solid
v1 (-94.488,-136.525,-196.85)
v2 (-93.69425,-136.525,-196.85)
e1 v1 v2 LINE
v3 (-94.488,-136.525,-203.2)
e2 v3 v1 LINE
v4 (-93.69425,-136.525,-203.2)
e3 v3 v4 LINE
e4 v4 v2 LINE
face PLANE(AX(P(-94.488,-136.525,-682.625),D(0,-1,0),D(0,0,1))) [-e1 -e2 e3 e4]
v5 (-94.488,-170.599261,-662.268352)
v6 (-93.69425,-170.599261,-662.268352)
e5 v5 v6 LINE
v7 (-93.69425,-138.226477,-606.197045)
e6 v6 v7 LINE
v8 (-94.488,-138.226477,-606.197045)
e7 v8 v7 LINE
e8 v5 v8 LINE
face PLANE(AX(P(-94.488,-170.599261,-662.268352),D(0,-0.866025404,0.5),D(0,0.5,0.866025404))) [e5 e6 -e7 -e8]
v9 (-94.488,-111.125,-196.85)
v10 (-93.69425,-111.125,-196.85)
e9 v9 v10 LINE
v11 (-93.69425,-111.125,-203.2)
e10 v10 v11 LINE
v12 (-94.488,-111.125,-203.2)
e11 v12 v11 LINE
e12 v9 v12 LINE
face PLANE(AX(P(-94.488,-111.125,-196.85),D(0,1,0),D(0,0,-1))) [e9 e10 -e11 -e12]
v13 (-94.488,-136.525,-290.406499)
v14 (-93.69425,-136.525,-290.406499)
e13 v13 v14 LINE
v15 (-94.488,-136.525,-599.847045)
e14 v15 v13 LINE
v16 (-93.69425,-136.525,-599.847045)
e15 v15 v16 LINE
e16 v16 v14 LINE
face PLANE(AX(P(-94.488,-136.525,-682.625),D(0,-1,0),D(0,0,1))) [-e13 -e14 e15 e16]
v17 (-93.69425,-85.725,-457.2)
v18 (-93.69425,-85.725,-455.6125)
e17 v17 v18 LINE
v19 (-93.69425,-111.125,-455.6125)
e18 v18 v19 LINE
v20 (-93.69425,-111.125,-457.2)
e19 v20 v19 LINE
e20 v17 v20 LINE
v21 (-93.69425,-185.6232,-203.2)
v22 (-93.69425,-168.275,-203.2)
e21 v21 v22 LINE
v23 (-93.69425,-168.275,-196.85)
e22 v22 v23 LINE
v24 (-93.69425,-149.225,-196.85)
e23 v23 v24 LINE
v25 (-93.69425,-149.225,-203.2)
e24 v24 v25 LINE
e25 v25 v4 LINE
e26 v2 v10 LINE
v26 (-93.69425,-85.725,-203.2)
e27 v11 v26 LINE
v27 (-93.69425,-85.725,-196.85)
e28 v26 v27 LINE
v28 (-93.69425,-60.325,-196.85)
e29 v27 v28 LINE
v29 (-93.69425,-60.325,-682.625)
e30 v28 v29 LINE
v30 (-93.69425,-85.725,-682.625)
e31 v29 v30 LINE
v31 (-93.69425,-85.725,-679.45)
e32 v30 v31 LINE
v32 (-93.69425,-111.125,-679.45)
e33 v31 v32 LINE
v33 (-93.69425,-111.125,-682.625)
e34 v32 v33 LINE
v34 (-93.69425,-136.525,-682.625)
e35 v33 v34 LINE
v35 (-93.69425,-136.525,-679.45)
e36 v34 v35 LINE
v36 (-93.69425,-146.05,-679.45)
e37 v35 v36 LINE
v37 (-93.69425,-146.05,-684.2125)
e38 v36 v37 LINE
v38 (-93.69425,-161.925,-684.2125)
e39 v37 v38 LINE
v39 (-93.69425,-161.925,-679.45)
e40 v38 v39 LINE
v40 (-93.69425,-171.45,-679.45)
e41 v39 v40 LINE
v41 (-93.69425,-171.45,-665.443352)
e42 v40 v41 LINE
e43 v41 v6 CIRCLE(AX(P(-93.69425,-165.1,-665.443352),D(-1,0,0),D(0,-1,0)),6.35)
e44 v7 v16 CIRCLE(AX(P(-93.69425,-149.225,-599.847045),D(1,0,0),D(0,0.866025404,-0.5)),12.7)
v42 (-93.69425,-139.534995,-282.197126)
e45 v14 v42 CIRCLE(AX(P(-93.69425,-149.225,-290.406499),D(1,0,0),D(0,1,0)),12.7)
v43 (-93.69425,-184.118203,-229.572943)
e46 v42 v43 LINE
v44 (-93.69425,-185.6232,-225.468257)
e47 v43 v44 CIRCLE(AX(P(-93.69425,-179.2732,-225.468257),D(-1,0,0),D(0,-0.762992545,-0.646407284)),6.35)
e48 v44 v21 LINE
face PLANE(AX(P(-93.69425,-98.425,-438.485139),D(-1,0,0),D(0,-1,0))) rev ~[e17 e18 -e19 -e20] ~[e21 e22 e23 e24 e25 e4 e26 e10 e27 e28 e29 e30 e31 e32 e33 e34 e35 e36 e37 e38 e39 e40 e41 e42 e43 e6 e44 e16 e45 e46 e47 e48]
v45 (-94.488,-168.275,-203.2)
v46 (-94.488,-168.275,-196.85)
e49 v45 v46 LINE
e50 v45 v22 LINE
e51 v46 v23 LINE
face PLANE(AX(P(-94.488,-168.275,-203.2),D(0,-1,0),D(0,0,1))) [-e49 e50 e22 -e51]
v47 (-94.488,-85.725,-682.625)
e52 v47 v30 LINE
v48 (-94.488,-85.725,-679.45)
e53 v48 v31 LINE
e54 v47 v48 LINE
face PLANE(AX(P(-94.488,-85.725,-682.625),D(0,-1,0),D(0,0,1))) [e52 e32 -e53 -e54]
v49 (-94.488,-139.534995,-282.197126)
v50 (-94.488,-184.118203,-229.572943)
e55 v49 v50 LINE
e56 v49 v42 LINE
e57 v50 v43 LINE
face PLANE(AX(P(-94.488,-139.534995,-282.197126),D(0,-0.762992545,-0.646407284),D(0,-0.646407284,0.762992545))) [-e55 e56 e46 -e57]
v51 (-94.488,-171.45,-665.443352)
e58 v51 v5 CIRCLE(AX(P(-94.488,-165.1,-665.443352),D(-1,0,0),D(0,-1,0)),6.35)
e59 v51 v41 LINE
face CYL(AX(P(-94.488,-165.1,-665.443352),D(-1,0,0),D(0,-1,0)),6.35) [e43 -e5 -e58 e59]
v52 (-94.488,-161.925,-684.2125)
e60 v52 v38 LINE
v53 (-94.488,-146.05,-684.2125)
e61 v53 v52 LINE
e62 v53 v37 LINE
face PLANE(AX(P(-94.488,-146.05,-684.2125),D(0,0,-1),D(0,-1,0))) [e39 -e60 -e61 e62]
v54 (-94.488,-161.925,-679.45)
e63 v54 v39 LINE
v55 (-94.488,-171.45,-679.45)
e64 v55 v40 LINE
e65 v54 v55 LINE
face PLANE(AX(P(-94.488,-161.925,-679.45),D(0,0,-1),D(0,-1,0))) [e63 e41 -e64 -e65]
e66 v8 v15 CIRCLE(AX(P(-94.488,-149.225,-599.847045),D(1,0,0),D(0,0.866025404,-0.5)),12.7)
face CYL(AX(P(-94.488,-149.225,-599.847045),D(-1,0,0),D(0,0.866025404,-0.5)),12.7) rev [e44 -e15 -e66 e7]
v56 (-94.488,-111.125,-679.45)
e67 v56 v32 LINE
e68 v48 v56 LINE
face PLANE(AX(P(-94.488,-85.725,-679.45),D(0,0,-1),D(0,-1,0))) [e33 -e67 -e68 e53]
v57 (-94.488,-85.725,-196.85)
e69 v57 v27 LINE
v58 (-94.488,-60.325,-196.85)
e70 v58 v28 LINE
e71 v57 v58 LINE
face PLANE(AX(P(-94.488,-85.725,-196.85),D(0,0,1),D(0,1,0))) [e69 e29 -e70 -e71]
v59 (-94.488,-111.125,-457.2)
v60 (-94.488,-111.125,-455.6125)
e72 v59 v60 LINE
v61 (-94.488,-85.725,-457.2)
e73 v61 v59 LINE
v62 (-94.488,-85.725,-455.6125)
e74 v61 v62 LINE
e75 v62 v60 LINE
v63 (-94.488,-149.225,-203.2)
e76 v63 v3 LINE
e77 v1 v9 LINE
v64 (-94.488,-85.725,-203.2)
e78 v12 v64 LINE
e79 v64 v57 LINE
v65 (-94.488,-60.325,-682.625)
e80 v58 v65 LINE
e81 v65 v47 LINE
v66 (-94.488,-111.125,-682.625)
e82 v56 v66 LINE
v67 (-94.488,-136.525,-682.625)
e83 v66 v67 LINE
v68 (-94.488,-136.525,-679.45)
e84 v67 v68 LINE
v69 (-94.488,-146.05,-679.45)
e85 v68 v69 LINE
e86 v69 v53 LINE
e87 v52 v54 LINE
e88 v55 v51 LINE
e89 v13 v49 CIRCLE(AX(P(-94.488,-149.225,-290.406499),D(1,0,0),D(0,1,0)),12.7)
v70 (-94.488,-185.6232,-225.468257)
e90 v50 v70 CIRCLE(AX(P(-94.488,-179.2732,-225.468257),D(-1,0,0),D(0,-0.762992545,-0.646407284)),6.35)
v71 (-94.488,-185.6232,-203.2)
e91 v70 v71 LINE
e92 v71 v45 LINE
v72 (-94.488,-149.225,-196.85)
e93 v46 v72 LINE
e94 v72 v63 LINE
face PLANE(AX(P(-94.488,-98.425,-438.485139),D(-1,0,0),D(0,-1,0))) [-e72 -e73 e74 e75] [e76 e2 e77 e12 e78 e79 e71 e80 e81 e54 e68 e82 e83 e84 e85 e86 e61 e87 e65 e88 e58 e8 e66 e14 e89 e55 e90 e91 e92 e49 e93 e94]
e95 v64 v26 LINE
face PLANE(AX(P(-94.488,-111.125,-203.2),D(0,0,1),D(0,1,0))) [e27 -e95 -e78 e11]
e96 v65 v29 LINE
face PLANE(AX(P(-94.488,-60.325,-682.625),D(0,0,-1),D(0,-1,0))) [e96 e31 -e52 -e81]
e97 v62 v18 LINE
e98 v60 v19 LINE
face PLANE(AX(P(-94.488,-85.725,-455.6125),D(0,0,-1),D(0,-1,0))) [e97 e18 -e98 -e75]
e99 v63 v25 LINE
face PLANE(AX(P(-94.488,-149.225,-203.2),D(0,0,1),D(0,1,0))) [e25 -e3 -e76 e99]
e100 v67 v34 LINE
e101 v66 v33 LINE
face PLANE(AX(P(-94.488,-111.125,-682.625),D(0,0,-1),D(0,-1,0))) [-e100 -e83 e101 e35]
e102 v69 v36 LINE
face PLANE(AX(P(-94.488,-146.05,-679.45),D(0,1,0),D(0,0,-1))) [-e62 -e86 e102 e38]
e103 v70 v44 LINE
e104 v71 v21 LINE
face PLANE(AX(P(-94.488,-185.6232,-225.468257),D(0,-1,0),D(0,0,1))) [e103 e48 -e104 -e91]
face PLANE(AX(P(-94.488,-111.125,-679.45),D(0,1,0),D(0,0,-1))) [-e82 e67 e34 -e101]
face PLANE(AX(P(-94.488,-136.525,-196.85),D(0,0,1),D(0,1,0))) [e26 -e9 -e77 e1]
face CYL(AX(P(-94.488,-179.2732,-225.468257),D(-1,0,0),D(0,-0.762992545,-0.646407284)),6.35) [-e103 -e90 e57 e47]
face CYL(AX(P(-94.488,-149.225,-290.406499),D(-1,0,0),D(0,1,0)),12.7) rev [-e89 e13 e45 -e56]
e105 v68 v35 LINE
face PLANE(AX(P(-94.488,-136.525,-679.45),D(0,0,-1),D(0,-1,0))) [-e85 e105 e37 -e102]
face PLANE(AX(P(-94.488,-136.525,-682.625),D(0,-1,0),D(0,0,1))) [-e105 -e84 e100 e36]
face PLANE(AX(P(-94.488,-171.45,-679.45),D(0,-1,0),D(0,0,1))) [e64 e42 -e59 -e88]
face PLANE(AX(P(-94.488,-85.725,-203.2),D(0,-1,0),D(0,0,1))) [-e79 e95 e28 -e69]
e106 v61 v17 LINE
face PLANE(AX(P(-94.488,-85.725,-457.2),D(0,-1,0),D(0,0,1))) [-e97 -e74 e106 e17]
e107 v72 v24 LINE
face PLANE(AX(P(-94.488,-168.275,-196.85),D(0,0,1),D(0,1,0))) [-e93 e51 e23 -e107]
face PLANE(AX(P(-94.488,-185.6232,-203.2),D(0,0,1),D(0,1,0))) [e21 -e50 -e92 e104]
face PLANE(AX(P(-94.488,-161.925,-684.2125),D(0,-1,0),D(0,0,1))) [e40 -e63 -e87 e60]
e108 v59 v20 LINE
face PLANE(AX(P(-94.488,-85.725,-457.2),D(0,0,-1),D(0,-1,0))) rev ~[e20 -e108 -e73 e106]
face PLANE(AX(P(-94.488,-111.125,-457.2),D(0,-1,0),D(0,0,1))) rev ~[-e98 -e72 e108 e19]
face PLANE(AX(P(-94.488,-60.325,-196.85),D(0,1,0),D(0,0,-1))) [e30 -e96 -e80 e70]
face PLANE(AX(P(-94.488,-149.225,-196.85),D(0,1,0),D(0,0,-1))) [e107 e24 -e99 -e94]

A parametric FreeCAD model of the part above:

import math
import FreeCAD as App
import Part
import Sketcher
Q = App.Units.Quantity


def add_polygon(sketch, points):
    """Adds a closed chain of lines whose ends are joined by coincident constraints."""
    first, n = sketch.GeometryCount, len(points)
    for a, b in zip(points, points[1:] + points[:1]):
        sketch.addGeometry(Part.LineSegment(App.Vector(*a, 0), App.Vector(*b, 0)), False)
    for i in range(n):
        sketch.addConstraint(Sketcher.Constraint("Coincident", first + i, 2, first + (i + 1) % n, 1))

doc = App.newDocument("Part")
params = doc.addObject("Spreadsheet::Sheet", "Params")
for row, (alias, value) in enumerate([
    ("sketch1_radius", "0.5 in"),
    ("sketch1_width", "1 in"),
    ("sketch1_radius2", "0.25 in"),
    ("sketch1_width2", "0.75 in"),
    ("sketch1_height", "0.25 in"),
    ("pad1_length", "0.03125 in"),
], start=1):
    params.set(f"A{row}", alias)
    params.set(f"B{row}", "=" + value)
    params.setAlias(f"B{row}", alias)

body = doc.addObject("PartDesign::Body", "Body")

# Sketch on YZ plane
sketch1 = doc.addObject("Sketcher::SketchObject", "Sketch")
body.addObject(sketch1)
sketch1.AttachmentSupport = (doc.YZ_Plane, [""])
sketch1.MapMode = "FlatFace"
sketch1.AttachmentOffset = App.Placement(App.Vector(0, 0, -3.72 * 25.4), App.Rotation())
sketch1.addGeometry(Part.LineSegment(App.Vector(-136.5, -196.8, 0), App.Vector(-111.1, -196.8, 0)), False)  # 0
sketch1.addGeometry(Part.LineSegment(App.Vector(-111.1, -196.8, 0), App.Vector(-111.1, -203.2, 0)), False)  # 1
sketch1.addGeometry(Part.LineSegment(App.Vector(-111.1, -203.2, 0), App.Vector(-85.7, -203.2, 0)), False)  # 2
sketch1.addGeometry(Part.LineSegment(App.Vector(-85.7, -203.2, 0), App.Vector(-85.7, -196.8, 0)), False)  # 3
sketch1.addGeometry(Part.LineSegment(App.Vector(-85.7, -196.8, 0), App.Vector(-60.3, -196.8, 0)), False)  # 4
sketch1.addGeometry(Part.LineSegment(App.Vector(-60.3, -196.8, 0), App.Vector(-60.3, -682.6, 0)), False)  # 5
sketch1.addGeometry(Part.LineSegment(App.Vector(-60.3, -682.6, 0), App.Vector(-85.7, -682.6, 0)), False)  # 6
sketch1.addGeometry(Part.LineSegment(App.Vector(-85.7, -682.6, 0), App.Vector(-85.7, -679.5, 0)), False)  # 7
sketch1.addGeometry(Part.LineSegment(App.Vector(-85.7, -679.5, 0), App.Vector(-111.1, -679.5, 0)), False)  # 8
sketch1.addGeometry(Part.LineSegment(App.Vector(-111.1, -679.5, 0), App.Vector(-111.1, -682.6, 0)), False)  # 9
sketch1.addGeometry(Part.LineSegment(App.Vector(-111.1, -682.6, 0), App.Vector(-136.5, -682.6, 0)), False)  # 10
sketch1.addGeometry(Part.LineSegment(App.Vector(-136.5, -682.6, 0), App.Vector(-136.5, -679.5, 0)), False)  # 11
sketch1.addGeometry(Part.LineSegment(App.Vector(-136.5, -679.5, 0), App.Vector(-146.1, -679.5, 0)), False)  # 12
sketch1.addGeometry(Part.LineSegment(App.Vector(-146.1, -679.5, 0), App.Vector(-146.1, -684.2, 0)), False)  # 13
sketch1.addGeometry(Part.LineSegment(App.Vector(-146.1, -684.2, 0), App.Vector(-161.9, -684.2, 0)), False)  # 14
sketch1.addGeometry(Part.LineSegment(App.Vector(-161.9, -684.2, 0), App.Vector(-161.9, -679.5, 0)), False)  # 15
sketch1.addGeometry(Part.LineSegment(App.Vector(-161.9, -679.5, 0), App.Vector(-171.4, -679.5, 0)), False)  # 16
sketch1.addGeometry(Part.LineSegment(App.Vector(-171.4, -679.5, 0), App.Vector(-171.4, -665.4, 0)), False)  # 17
sketch1.addGeometry(Part.ArcOfCircle(Part.Circle(App.Vector(-165.1, -665.4, 0), App.Vector(0, 0, 1), 6.4), math.radians(150), math.radians(180)), False)  # 18
sketch1.addGeometry(Part.LineSegment(App.Vector(-170.6, -662.3, 0), App.Vector(-138.2, -606.2, 0)), False)  # 19
sketch1.addGeometry(Part.ArcOfCircle(Part.Circle(App.Vector(-149.2, -599.8, 0), App.Vector(0, 0, 1), 12.7), math.radians(-30), math.radians(0)), False)  # 20
sketch1.addGeometry(Part.LineSegment(App.Vector(-136.5, -599.8, 0), App.Vector(-136.5, -290.4, 0)), False)  # 21
sketch1.addGeometry(Part.ArcOfCircle(Part.Circle(App.Vector(-149.2, -290.4, 0), App.Vector(0, 0, 1), 12.7), math.radians(0), math.radians(40)), False)  # 22
sketch1.addGeometry(Part.LineSegment(App.Vector(-139.5, -282.2, 0), App.Vector(-184.1, -229.6, 0)), False)  # 23
sketch1.addGeometry(Part.ArcOfCircle(Part.Circle(App.Vector(-179.3, -225.5, 0), App.Vector(0, 0, 1), 6.3), math.radians(180), math.radians(220)), False)  # 24
sketch1.addGeometry(Part.LineSegment(App.Vector(-185.6, -225.5, 0), App.Vector(-185.6, -203.2, 0)), False)  # 25
sketch1.addGeometry(Part.LineSegment(App.Vector(-185.6, -203.2, 0), App.Vector(-168.3, -203.2, 0)), False)  # 26
sketch1.addGeometry(Part.LineSegment(App.Vector(-168.3, -203.2, 0), App.Vector(-168.3, -196.8, 0)), False)  # 27
sketch1.addGeometry(Part.LineSegment(App.Vector(-168.3, -196.8, 0), App.Vector(-149.2, -196.8, 0)), False)  # 28
sketch1.addGeometry(Part.LineSegment(App.Vector(-149.2, -196.8, 0), App.Vector(-149.2, -203.2, 0)), False)  # 29
sketch1.addGeometry(Part.LineSegment(App.Vector(-149.2, -203.2, 0), App.Vector(-136.5, -203.2, 0)), False)  # 30
sketch1.addGeometry(Part.LineSegment(App.Vector(-136.5, -203.2, 0), App.Vector(-136.5, -196.8, 0)), False)  # 31
add_polygon(sketch1, [(-111.1, -457.2), (-85.7, -457.2), (-85.7, -455.6), (-111.1, -455.6)])  # lines 32-35
sketch1.addConstraint([
    Sketcher.Constraint("Coincident", 0, 2, 1, 1),
    Sketcher.Constraint("Coincident", 1, 2, 2, 1),
    Sketcher.Constraint("Coincident", 2, 2, 3, 1),
    Sketcher.Constraint("Coincident", 3, 2, 4, 1),
    Sketcher.Constraint("Coincident", 4, 2, 5, 1),
    Sketcher.Constraint("Coincident", 5, 2, 6, 1),
    Sketcher.Constraint("Coincident", 6, 2, 7, 1),
    Sketcher.Constraint("Coincident", 7, 2, 8, 1),
    Sketcher.Constraint("Coincident", 8, 2, 9, 1),
    Sketcher.Constraint("Coincident", 9, 2, 10, 1),
    Sketcher.Constraint("Coincident", 10, 2, 11, 1),
    Sketcher.Constraint("Coincident", 11, 2, 12, 1),
    Sketcher.Constraint("Coincident", 12, 2, 13, 1),
    Sketcher.Constraint("Coincident", 13, 2, 14, 1),
    Sketcher.Constraint("Coincident", 14, 2, 15, 1),
    Sketcher.Constraint("Coincident", 15, 2, 16, 1),
    Sketcher.Constraint("Coincident", 16, 2, 17, 1),
    Sketcher.Constraint("Tangent", 17, 2, 18, 2),
    Sketcher.Constraint("Tangent", 18, 1, 19, 1),
    Sketcher.Constraint("Tangent", 19, 2, 20, 1),
    Sketcher.Constraint("Tangent", 20, 2, 21, 1),
    Sketcher.Constraint("Tangent", 21, 2, 22, 1),
    Sketcher.Constraint("Tangent", 22, 2, 23, 1),
    Sketcher.Constraint("Tangent", 23, 2, 24, 2),
    Sketcher.Constraint("Tangent", 24, 1, 25, 1),
    Sketcher.Constraint("Coincident", 25, 2, 26, 1),
    Sketcher.Constraint("Coincident", 26, 2, 27, 1),
    Sketcher.Constraint("Coincident", 27, 2, 28, 1),
    Sketcher.Constraint("Coincident", 28, 2, 29, 1),
    Sketcher.Constraint("Coincident", 29, 2, 30, 1),
    Sketcher.Constraint("Coincident", 30, 2, 31, 1),
    Sketcher.Constraint("Coincident", 31, 2, 0, 1),
    Sketcher.Constraint("Horizontal", 0),
    Sketcher.Constraint("Vertical", 1),
    Sketcher.Constraint("Horizontal", 2),
    Sketcher.Constraint("Vertical", 3),
    Sketcher.Constraint("Horizontal", 4),
    Sketcher.Constraint("Vertical", 5),
    Sketcher.Constraint("Horizontal", 6),
    Sketcher.Constraint("Vertical", 7),
    Sketcher.Constraint("Horizontal", 8),
    Sketcher.Constraint("Vertical", 9),
    Sketcher.Constraint("Horizontal", 10),
    Sketcher.Constraint("Vertical", 11),
    Sketcher.Constraint("Horizontal", 12),
    Sketcher.Constraint("Vertical", 13),
    Sketcher.Constraint("Horizontal", 14),
    Sketcher.Constraint("Vertical", 15),
    Sketcher.Constraint("Horizontal", 16),
    Sketcher.Constraint("Vertical", 17),
    Sketcher.Constraint("Vertical", 21),
    Sketcher.Constraint("Vertical", 25),
    Sketcher.Constraint("Horizontal", 26),
    Sketcher.Constraint("Vertical", 27),
    Sketcher.Constraint("Horizontal", 28),
    Sketcher.Constraint("Vertical", 29),
    Sketcher.Constraint("Horizontal", 30),
    Sketcher.Constraint("Vertical", 31),
    Sketcher.Constraint("Horizontal", 32),
    Sketcher.Constraint("Vertical", 33),
    Sketcher.Constraint("Horizontal", 34),
    Sketcher.Constraint("Vertical", 35),
    Sketcher.Constraint("Equal", 20, 22),
    Sketcher.Constraint("Equal", 18, 24),
    Sketcher.Constraint("Horizontal", 0, 2, 3, 2),
    Sketcher.Constraint("Horizontal", 6, 2, 9, 2),
    Sketcher.Constraint("Horizontal", 8, 2, 11, 2),
    Sketcher.Constraint("Horizontal", 12, 2, 15, 2),
    Sketcher.Constraint("Horizontal", 2, 2, 25, 2),
    Sketcher.Constraint("Horizontal", 4, 2, 27, 2),
    Sketcher.Constraint("Horizontal", 26, 2, 29, 2),
    Sketcher.Constraint("Vertical", 3, 2, 6, 2),
    Sketcher.Constraint("Vertical", 1, 2, 8, 2),
    Sketcher.Constraint("Vertical", 11, 2, 20, 2),
    Sketcher.Constraint("Vertical", 22, 3, 28, 2),
    Sketcher.Constraint("Vertical", 21, 2, 30, 2),
    Sketcher.Constraint("Vertical", 7, 2, 32, 2),
    Sketcher.Constraint("Vertical", 9, 2, 34, 2),
    Sketcher.Constraint("Equal", 0, 2),
    Sketcher.Constraint("Equal", 2, 4),
    Sketcher.Constraint("Equal", 12, 16),
    Sketcher.Constraint("Radius", 20, Q("0.5 in")),
    Sketcher.Constraint("DistanceX", 0, 1, 0, 2, Q("1 in")),
    Sketcher.Constraint("Radius", 18, Q("0.25 in")),
    Sketcher.Constraint("DistanceY", 1, 2, -1, 1, Q("8 in")),
    Sketcher.Constraint("DistanceY", 32, 2, -1, 1, Q("18 in")),
    Sketcher.Constraint("Angle", 19, Q("60 deg")),
    Sketcher.Constraint("DistanceX", 14, 2, 10, 2, Q("1 in")),
    Sketcher.Constraint("DistanceX", 28, 1, 28, 2, Q("0.75 in")),
    Sketcher.Constraint("DistanceY", 1, 2, 1, 1, Q("0.25 in")),
    Sketcher.Constraint("DistanceX", 18, 3, -1, 1, Q("6.5 in")),
    Sketcher.Constraint("DistanceX", 12, 2, 12, 1, Q("0.375 in")),
    Sketcher.Constraint("DistanceX", 26, 1, 26, 2, Q("0.683 in")),
    Sketcher.Constraint("DistanceY", 5, 2, 5, 1, Q("19.125 in")),
    Sketcher.Constraint("DistanceY", 7, 1, 7, 2, Q("0.125 in")),
    Sketcher.Constraint("DistanceY", 13, 2, 13, 1, Q("0.1875 in")),
    Sketcher.Constraint("DistanceY", 33, 1, 33, 2, Q("0.0625 in")),
    Sketcher.Constraint("DistanceY", 17, 1, 17, 2, Q("14.006648 mm")),
    Sketcher.Constraint("DistanceY", 22, 3, -1, 1, Q("290.406499 mm")),
    Sketcher.Constraint("Distance", 23, Q("68.97077 mm")),
])
sketch1.setExpression("Constraints[85]", "Params.sketch1_radius")
sketch1.setExpression("Constraints[86]", "Params.sketch1_width")
sketch1.setExpression("Constraints[87]", "Params.sketch1_radius2")
sketch1.setExpression("Constraints[92]", "Params.sketch1_width2")
sketch1.setExpression("Constraints[93]", "Params.sketch1_height")
pad1 = doc.addObject("PartDesign::Pad", "Pad")
body.addObject(pad1)
pad1.Profile = sketch1
pad1.setExpression("Length", "Params.pad1_length")

doc.recompute()
